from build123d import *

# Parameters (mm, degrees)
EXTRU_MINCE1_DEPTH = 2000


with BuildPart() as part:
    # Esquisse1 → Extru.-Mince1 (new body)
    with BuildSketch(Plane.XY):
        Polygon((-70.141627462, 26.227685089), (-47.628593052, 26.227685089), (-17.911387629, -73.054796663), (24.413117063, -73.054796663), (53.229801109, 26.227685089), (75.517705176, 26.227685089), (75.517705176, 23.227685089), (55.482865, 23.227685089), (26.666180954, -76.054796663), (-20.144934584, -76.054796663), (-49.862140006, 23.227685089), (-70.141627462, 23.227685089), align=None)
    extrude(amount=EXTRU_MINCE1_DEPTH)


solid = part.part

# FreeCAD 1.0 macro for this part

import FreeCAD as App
import Part
import Sketcher
from FreeCAD import Vector
Q = App.Units.Quantity

doc = App.newDocument("Part")
body = doc.addObject("PartDesign::Body", "Body")

sketch1 = doc.addObject("Sketcher::SketchObject", "Sketch")
body.addObject(sketch1)
sketch1.AttachmentSupport = (doc.XY_Plane, [""])
sketch1.MapMode = "FlatFace"
sketch1.addGeometry([
    Part.LineSegment(Vector(-47.6, 26.2, 0), Vector(-70.1, 26.2, 0)),
    Part.LineSegment(Vector(-70.1, 26.2, 0), Vector(-70.1, 23.2, 0)),
    Part.LineSegment(Vector(-70.1, 23.2, 0), Vector(-49.9, 23.2, 0)),
    Part.LineSegment(Vector(-49.9, 23.2, 0), Vector(-20.1, -76.1, 0)),
    Part.LineSegment(Vector(-20.1, -76.1, 0), Vector(26.7, -76.1, 0)),
    Part.LineSegment(Vector(26.7, -76.1, 0), Vector(55.5, 23.2, 0)),
    Part.LineSegment(Vector(55.5, 23.2, 0), Vector(75.5, 23.2, 0)),
    Part.LineSegment(Vector(75.5, 23.2, 0), Vector(75.5, 26.2, 0)),
    Part.LineSegment(Vector(75.5, 26.2, 0), Vector(53.2, 26.2, 0)),
    Part.LineSegment(Vector(53.2, 26.2, 0), Vector(24.4, -73.1, 0)),
    Part.LineSegment(Vector(24.4, -73.1, 0), Vector(-17.9, -73.1, 0)),
    Part.LineSegment(Vector(-17.9, -73.1, 0), Vector(-47.6, 26.2, 0)),
], False)
sketch1.addConstraint([
    Sketcher.Constraint("Coincident", 0, 2, 1, 1),
    Sketcher.Constraint("Coincident", 1, 2, 2, 1),
    Sketcher.Constraint("Coincident", 2, 2, 3, 1),
    Sketcher.Constraint("Coincident", 3, 2, 4, 1),
    Sketcher.Constraint("Coincident", 4, 2, 5, 1),
    Sketcher.Constraint("Coincident", 5, 2, 6, 1),
    Sketcher.Constraint("Coincident", 6, 2, 7, 1),
    Sketcher.Constraint("Coincident", 7, 2, 8, 1),
    Sketcher.Constraint("Coincident", 8, 2, 9, 1),
    Sketcher.Constraint("Coincident", 9, 2, 10, 1),
    Sketcher.Constraint("Coincident", 10, 2, 11, 1),
    Sketcher.Constraint("Coincident", 11, 2, 0, 1),
    Sketcher.Constraint("Horizontal", 0),
    Sketcher.Constraint("Vertical", 1),
    Sketcher.Constraint("Horizontal", 2),
    Sketcher.Constraint("Horizontal", 4),
    Sketcher.Constraint("Horizontal", 6),
    Sketcher.Constraint("Vertical", 7),
    Sketcher.Constraint("Horizontal", 8),
    Sketcher.Constraint("Horizontal", 10),
    Sketcher.Constraint("Parallel", 5, 9),
    Sketcher.Constraint("Parallel", 3, 11),
    Sketcher.Constraint("Horizontal", 2, 2, 5, 2),
    Sketcher.Constraint("Horizontal", 0, 2, 7, 2),
    Sketcher.Constraint("Equal", 5, 9),
    Sketcher.Constraint("DistanceY", 1, 2, 1, 1, Q("3 mm")),
    Sketcher.Constraint("DistanceX", 6, 1, 6, 2, Q("20.03484 mm")),
    Sketcher.Constraint("DistanceX", -1, 1, 8, 2, Q("53.229801 mm")),
    Sketcher.Constraint("DistanceX", 3, 2, 5, 2, Q("75.6278 mm")),
    Sketcher.Constraint("DistanceX", 0, 2, 0, 1, Q("22.513034 mm")),
    Sketcher.Constraint("DistanceX", 2, 1, 2, 2, Q("20.279487 mm")),
    Sketcher.Constraint("DistanceX", 4, 1, 4, 2, Q("46.811116 mm")),
    Sketcher.Constraint("DistanceX", 8, 2, 8, 1, Q("22.287904 mm")),
    Sketcher.Constraint("DistanceX", 2, 2, -1, 1, Q("49.86214 mm")),
    Sketcher.Constraint("DistanceY", 3, 2, 2, 2, Q("99.282482 mm")),
    Sketcher.Constraint("DistanceY", -1, 1, 0, 2, Q("26.227685 mm")),
])
pad1 = doc.addObject("PartDesign::Pad", "Pad")
body.addObject(pad1)
pad1.Profile = sketch1
pad1.Length = 2000

doc.recompute()
